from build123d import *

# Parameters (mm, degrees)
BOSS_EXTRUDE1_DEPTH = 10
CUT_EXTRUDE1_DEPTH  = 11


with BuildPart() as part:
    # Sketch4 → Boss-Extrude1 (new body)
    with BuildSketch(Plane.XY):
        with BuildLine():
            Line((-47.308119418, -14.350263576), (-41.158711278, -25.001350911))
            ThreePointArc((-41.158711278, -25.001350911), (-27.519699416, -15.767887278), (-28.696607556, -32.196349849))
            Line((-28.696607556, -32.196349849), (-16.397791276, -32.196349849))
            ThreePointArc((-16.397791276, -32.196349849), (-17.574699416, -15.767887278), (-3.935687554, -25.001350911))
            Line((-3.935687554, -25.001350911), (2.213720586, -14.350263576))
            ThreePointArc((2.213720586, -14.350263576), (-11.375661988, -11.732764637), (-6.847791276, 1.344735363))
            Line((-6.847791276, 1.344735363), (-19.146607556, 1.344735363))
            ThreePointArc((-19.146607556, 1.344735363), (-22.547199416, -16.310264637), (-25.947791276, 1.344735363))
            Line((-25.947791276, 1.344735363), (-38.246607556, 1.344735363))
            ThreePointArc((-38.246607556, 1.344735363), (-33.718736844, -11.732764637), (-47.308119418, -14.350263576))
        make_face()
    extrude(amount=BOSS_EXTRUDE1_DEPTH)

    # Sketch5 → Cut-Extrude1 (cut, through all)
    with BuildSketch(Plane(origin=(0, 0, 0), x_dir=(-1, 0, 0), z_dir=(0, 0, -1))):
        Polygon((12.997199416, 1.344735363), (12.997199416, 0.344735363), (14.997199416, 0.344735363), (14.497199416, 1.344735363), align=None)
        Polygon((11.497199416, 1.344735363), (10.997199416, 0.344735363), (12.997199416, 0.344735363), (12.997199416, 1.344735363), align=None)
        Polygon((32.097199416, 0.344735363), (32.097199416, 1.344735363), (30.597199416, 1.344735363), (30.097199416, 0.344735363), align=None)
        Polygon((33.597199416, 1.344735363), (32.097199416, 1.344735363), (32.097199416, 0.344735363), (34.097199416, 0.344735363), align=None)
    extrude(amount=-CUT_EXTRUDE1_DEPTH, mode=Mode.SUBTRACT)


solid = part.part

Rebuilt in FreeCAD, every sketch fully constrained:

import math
import FreeCAD as App
import Part
import Sketcher
Q = App.Units.Quantity


def add_polygon(sketch, points):
    """Adds a closed chain of lines whose ends are joined by coincident constraints."""
    first, n = sketch.GeometryCount, len(points)
    for a, b in zip(points, points[1:] + points[:1]):
        sketch.addGeometry(Part.LineSegment(App.Vector(*a, 0), App.Vector(*b, 0)), False)
    for i in range(n):
        sketch.addConstraint(Sketcher.Constraint("Coincident", first + i, 2, first + (i + 1) % n, 1))

doc = App.newDocument("Part")
body = doc.addObject("PartDesign::Body", "Body")

sketch1 = body.newObject("Sketcher::SketchObject", "Sketch")
sketch1.AttachmentSupport = (doc.getObject("XY_Plane"), [""])
sketch1.MapMode = "FlatFace"
sketch1.addGeometry([
    Part.LineSegment(App.Vector(-47, -14, 0), App.Vector(-41, -25, 0)),
    Part.ArcOfCircle(Part.Circle(App.Vector(-32, -24, 0), App.Vector(0, 0, 1), 9), math.radians(-68), math.radians(188)),
    Part.LineSegment(App.Vector(-29, -32, 0), App.Vector(-16, -32, 0)),
    Part.ArcOfCircle(Part.Circle(App.Vector(-13, -24, 0), App.Vector(0, 0, 1), 9), math.radians(-8), math.radians(248)),
    Part.LineSegment(App.Vector(-4, -25, 0), App.Vector(2, -14, 0)),
    Part.ArcOfCircle(Part.Circle(App.Vector(-3, -7, 0), App.Vector(0, 0, 1), 9), math.radians(112), math.radians(308)),
    Part.LineSegment(App.Vector(-7, 1, 0), App.Vector(-19, 1, 0)),
    Part.ArcOfCircle(Part.Circle(App.Vector(-23, -7, 0), App.Vector(0, 0, 1), 9), math.radians(112), math.radians(428)),
    Part.LineSegment(App.Vector(-26, 1, 0), App.Vector(-38, 1, 0)),
    Part.ArcOfCircle(Part.Circle(App.Vector(-42, -7, 0), App.Vector(0, 0, 1), 9), math.radians(-128), math.radians(68)),
], False)
sketch1.addConstraint([
    Sketcher.Constraint("Coincident", 0, 2, 1, 2),
    Sketcher.Constraint("Coincident", 1, 1, 2, 1),
    Sketcher.Constraint("Coincident", 2, 2, 3, 2),
    Sketcher.Constraint("Coincident", 3, 1, 4, 1),
    Sketcher.Constraint("Coincident", 4, 2, 5, 2),
    Sketcher.Constraint("Coincident", 5, 1, 6, 1),
    Sketcher.Constraint("Coincident", 6, 2, 7, 2),
    Sketcher.Constraint("Coincident", 7, 1, 8, 1),
    Sketcher.Constraint("Coincident", 8, 2, 9, 2),
    Sketcher.Constraint("Coincident", 9, 1, 0, 1),
    Sketcher.Constraint("Horizontal", 2),
    Sketcher.Constraint("Horizontal", 6),
    Sketcher.Constraint("Horizontal", 8),
    Sketcher.Constraint("Equal", 1, 3),
    Sketcher.Constraint("Equal", 3, 5),
    Sketcher.Constraint("Equal", 5, 7),
    Sketcher.Constraint("Equal", 7, 9),
    Sketcher.Constraint("Horizontal", 1, 3, 3, 3),
    Sketcher.Constraint("Horizontal", 5, 3, 7, 3),
    Sketcher.Constraint("Horizontal", 7, 3, 9, 3),
    Sketcher.Constraint("Horizontal", 0, 2, 3, 1),
    Sketcher.Constraint("Horizontal", 6, 2, 7, 1),
    Sketcher.Constraint("Horizontal", 4, 2, 9, 1),
    Sketcher.Constraint("Equal", 2, 6),
    Sketcher.Constraint("Equal", 6, 8),
    Sketcher.Constraint("Equal", 0, 4),
    Sketcher.Constraint("Angle", 0, Q("-60 deg")),
    Sketcher.Constraint("Radius", 1, 9.155),
    Sketcher.Constraint("DistanceX", 1, 3, 3, 3, 19.1),
    Sketcher.Constraint("DistanceX", 7, 3, 5, 3, 19.1),
    Sketcher.Constraint("DistanceY", 1, 1, 1, 3, 8.5),
    Sketcher.Constraint("DistanceY", 0, 2, 1, 3, 1.305001),
    Sketcher.Constraint("DistanceY", 4, 2, 5, 3, 7.194999),
    Sketcher.Constraint("DistanceX", 1, 3, -1, 1, 32.097199),
    Sketcher.Constraint("DistanceY", 1, 3, -1, 1, 23.69635),
])
pad1 = body.newObject("PartDesign::Pad", "Pad")
pad1.Profile = sketch1
pad1.Length = 10

sketch2 = body.newObject("Sketcher::SketchObject", "Sketch001")
sketch2.AttachmentSupport = (doc.getObject("XY_Plane"), [""])
sketch2.MapMode = "FlatFace"
add_polygon(sketch2, [(-15, 0.3), (-14.5, 1.3), (-11.5, 1.3), (-11, 0.3)])
add_polygon(sketch2, [(-30.6, 1.3), (-30.1, 0.3), (-34.1, 0.3), (-33.6, 1.3)])
sketch2.addConstraint([
    Sketcher.Constraint("Horizontal", 1),
    Sketcher.Constraint("Horizontal", 3),
    Sketcher.Constraint("Horizontal", 5),
    Sketcher.Constraint("Horizontal", 7),
    Sketcher.Constraint("Parallel", 2, 4),
    Sketcher.Constraint("Parallel", 0, 6),
    Sketcher.Constraint("Horizontal", 3, 2, 4, 2),
    Sketcher.Constraint("Horizontal", 1, 2, 6, 2),
    Sketcher.Constraint("Equal", 3, 5),
    Sketcher.Constraint("Equal", 0, 2),
    Sketcher.Constraint("DistanceX", 1, 1, 1, 2, 3.0),
    Sketcher.Constraint("DistanceX", 3, 2, 3, 1, 4.0),
    Sketcher.Constraint("DistanceY", 2, 2, 1, 2, 1.0),
    Sketcher.Constraint("DistanceX", 4, 2, 3, 2, 15.1),
    Sketcher.Constraint("DistanceX", 0, 2, -1, 1, 14.497199),
    Sketcher.Constraint("DistanceY", -1, 1, 0, 2, 1.344735),
])
pocket1 = body.newObject("PartDesign::Pocket", "Pocket")
pocket1.Profile = sketch2
pocket1.Type = "ThroughAll"
pocket1.Reversed = True

doc.recompute()
